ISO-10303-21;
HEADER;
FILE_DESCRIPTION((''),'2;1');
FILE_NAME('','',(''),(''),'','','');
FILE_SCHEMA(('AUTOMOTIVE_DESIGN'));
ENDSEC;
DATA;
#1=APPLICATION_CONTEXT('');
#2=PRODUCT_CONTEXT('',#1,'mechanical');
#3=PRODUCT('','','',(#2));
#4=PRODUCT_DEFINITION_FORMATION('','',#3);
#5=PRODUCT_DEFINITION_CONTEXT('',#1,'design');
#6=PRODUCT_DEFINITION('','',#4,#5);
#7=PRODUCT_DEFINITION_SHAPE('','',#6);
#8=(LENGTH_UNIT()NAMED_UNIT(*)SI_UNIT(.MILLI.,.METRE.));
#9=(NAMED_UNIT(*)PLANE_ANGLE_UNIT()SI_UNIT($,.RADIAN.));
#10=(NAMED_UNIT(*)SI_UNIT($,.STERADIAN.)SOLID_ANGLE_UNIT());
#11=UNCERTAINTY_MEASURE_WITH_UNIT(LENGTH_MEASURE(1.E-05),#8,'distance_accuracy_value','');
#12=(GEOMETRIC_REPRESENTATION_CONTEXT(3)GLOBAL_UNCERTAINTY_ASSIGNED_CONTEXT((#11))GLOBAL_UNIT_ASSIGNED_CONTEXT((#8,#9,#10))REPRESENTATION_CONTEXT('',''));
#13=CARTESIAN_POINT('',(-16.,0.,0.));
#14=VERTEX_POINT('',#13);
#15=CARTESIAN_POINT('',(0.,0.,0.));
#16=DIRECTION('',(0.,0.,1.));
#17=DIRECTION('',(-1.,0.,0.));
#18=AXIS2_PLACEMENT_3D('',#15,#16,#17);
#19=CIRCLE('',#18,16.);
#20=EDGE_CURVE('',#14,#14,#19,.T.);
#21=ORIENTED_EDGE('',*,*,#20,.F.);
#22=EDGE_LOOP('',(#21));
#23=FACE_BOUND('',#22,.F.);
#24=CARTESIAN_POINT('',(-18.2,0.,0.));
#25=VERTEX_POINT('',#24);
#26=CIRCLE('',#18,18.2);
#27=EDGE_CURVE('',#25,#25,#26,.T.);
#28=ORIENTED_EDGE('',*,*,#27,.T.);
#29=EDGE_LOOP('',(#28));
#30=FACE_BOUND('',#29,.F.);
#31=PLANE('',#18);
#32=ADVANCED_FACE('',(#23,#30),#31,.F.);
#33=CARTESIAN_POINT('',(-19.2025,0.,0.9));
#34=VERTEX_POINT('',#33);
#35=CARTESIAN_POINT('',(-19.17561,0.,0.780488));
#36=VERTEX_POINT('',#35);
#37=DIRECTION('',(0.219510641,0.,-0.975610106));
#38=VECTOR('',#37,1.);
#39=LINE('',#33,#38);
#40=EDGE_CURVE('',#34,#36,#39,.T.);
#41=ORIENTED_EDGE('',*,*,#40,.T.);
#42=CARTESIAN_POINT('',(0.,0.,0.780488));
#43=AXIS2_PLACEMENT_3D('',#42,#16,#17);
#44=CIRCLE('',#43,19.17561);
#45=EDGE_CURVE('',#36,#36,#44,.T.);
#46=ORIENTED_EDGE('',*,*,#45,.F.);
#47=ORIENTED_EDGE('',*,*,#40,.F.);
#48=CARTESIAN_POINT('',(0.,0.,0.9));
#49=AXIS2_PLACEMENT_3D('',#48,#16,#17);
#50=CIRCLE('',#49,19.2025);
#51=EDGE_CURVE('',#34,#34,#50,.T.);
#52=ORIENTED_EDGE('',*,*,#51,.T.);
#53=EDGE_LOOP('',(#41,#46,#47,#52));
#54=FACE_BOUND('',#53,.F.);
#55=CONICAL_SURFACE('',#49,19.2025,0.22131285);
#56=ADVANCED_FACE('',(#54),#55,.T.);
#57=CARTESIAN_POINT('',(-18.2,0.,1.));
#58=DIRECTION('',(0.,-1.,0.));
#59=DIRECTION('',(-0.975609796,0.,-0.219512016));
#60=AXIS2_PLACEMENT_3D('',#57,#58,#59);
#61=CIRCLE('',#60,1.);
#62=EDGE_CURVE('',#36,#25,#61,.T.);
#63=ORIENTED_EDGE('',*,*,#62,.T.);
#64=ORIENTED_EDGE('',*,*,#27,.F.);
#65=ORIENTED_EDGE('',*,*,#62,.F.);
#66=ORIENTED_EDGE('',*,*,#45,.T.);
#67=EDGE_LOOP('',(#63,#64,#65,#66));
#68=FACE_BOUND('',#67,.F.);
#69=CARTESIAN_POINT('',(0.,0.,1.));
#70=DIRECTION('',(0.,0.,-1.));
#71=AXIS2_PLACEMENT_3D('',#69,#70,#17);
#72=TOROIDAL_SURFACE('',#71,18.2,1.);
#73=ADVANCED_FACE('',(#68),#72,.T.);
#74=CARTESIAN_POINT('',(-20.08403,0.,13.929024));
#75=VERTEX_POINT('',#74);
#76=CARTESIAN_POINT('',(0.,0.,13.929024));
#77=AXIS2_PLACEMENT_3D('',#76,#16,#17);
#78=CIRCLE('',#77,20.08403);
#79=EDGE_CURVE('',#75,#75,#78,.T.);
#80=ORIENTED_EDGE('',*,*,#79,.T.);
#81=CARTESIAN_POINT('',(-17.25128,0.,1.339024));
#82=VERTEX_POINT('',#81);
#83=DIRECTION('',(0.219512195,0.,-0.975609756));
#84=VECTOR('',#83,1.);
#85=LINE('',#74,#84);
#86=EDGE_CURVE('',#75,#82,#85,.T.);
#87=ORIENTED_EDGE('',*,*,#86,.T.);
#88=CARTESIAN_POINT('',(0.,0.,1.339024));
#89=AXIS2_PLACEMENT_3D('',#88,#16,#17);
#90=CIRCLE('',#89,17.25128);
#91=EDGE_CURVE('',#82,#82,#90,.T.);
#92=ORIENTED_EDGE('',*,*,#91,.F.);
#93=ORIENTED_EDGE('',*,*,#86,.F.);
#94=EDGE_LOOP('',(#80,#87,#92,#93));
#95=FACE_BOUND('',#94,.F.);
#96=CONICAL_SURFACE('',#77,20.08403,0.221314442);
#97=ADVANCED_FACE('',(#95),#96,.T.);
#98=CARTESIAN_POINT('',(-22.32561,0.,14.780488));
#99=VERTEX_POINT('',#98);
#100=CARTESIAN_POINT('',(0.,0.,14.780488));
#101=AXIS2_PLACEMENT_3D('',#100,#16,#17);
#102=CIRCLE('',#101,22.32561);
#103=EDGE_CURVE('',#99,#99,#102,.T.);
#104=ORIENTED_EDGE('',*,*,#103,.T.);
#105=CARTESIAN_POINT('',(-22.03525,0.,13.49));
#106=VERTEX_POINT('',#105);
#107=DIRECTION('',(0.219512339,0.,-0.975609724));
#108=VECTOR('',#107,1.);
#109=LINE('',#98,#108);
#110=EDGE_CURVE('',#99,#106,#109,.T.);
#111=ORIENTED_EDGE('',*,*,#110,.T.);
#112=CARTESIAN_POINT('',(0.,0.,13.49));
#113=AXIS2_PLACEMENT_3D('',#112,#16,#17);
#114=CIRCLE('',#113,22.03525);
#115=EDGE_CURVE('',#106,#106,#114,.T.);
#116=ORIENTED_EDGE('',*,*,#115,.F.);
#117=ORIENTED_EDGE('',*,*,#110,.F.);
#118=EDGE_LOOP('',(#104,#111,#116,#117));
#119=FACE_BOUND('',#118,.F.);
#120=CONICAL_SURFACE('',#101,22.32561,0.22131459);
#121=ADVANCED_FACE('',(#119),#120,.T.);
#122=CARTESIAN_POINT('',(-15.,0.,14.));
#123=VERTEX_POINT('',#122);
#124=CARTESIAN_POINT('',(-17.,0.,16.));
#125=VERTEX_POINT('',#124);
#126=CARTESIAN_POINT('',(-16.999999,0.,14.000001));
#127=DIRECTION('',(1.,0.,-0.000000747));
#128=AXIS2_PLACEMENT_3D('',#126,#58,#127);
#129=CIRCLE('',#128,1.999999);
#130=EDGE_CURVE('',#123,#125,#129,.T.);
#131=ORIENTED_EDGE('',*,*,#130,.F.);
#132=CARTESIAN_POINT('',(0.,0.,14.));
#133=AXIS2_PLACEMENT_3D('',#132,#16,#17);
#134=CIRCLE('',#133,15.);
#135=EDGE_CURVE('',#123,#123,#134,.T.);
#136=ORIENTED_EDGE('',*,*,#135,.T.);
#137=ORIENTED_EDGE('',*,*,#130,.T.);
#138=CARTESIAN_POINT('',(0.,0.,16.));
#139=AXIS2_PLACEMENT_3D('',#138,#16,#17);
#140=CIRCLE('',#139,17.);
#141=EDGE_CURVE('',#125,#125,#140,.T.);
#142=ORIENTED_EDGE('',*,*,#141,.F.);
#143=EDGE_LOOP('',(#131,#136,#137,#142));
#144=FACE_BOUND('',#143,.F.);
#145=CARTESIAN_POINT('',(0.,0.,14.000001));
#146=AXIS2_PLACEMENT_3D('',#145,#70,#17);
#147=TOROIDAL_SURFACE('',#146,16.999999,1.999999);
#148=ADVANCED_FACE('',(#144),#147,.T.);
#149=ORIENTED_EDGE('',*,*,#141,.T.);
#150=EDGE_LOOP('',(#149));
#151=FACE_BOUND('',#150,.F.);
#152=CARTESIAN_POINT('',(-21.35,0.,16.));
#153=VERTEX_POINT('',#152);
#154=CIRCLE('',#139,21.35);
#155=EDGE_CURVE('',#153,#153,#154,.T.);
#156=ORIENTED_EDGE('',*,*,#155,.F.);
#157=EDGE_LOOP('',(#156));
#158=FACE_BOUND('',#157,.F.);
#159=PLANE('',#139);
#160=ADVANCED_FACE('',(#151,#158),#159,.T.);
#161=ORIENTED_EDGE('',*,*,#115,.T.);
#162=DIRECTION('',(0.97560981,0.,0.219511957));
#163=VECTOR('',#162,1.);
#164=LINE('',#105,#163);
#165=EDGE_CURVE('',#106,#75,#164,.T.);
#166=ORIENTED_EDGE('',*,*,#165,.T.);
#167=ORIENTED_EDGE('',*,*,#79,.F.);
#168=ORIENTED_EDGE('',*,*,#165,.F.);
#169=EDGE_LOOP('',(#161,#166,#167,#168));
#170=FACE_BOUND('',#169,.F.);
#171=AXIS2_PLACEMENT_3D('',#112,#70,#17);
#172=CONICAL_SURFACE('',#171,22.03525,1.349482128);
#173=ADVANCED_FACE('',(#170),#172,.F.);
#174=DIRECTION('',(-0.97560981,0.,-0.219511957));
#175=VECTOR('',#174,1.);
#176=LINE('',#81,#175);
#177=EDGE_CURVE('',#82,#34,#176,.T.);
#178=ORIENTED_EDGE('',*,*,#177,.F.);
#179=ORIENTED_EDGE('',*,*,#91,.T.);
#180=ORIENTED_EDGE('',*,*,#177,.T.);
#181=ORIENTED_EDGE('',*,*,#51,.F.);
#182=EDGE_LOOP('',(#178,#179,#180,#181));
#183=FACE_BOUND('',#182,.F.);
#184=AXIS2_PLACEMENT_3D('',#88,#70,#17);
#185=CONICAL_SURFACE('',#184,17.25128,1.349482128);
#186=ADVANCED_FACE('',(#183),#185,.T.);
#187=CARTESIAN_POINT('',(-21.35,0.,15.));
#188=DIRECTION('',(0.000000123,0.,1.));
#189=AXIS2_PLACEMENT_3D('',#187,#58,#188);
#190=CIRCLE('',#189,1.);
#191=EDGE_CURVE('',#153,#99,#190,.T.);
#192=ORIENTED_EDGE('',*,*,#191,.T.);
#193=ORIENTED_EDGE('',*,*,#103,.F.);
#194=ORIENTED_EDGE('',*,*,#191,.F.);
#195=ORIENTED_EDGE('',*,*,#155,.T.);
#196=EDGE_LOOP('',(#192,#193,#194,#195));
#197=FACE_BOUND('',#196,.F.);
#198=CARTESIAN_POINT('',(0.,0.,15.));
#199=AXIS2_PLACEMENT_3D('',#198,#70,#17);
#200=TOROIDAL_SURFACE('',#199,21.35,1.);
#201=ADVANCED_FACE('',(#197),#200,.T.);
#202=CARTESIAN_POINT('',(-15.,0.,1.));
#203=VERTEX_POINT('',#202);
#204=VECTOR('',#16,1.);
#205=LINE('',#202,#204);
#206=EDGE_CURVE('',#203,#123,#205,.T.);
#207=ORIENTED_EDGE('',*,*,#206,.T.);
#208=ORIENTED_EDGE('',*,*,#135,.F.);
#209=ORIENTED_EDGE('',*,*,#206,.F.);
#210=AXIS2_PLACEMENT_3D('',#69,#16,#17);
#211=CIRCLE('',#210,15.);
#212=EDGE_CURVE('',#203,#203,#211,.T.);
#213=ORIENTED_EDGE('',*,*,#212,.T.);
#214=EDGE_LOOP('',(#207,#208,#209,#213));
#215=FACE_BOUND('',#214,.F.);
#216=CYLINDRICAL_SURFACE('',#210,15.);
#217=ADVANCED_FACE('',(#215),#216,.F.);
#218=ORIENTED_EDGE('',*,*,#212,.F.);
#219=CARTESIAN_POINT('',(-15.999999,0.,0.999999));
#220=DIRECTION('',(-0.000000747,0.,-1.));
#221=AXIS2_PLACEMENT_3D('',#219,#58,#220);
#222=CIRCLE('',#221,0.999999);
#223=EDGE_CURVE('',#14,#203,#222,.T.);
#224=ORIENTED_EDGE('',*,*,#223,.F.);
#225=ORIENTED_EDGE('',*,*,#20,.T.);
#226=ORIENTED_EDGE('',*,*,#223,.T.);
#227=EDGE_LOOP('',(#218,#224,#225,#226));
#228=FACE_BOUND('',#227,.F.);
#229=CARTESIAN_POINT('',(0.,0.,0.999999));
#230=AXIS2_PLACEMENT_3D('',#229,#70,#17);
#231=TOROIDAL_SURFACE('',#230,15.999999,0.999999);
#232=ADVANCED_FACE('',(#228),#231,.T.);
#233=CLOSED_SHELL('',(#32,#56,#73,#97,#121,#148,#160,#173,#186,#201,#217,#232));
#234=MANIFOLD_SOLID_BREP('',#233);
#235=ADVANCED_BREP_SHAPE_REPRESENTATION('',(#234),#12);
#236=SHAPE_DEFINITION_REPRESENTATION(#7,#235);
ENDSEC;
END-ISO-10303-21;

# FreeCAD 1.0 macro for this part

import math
import FreeCAD as App
import Part
import Sketcher

V = App.Vector

doc = App.newDocument("Part")
params = doc.addObject("Spreadsheet::Sheet", "Params")
for row, (alias, value) in enumerate([
    ("sketch1_radius", "0.999999 mm"),
    ("sketch1_radius2", "1.999999 mm"),
    ("sketch1_height", "13 mm"),
    ("sketch1_length", "2 mm"),
    ("sketch1_width", "2.2 mm"),
    ("revolution_angle", "360 deg"),
], start=1):
    params.set(f"A{row}", alias)
    params.set(f"B{row}", "=" + value)
    params.setAlias(f"B{row}", alias)

body = doc.addObject("PartDesign::Body", "Body")

# Sketch on XZ plane
sketch1 = body.newObject("Sketcher::SketchObject", "Sketch")
sketch1.AttachmentSupport = (doc.getObject("XZ_Plane"), [""])
sketch1.MapMode = "FlatFace"
sketch1.addGeometry([
    Part.ArcOfCircle(Part.Circle(V(-15.999999, 0.999999, 0), V(0, 0, 1), 0.999999), math.radians(-90.000043), math.radians(0.000043)),  # 0
    Part.LineSegment(V(-15, 1, 0), V(-15, 14, 0)),  # 1
    Part.ArcOfCircle(Part.Circle(V(-16.999999, 14.000001, 0), V(0, 0, 1), 1.999999), math.radians(-0.000043), math.radians(90.000043)),  # 2
    Part.LineSegment(V(-17, 16, 0), V(-21.35, 16, 0)),  # 3
    Part.ArcOfCircle(Part.Circle(V(-21.35, 15, 0), V(0, 0, 1), 1), math.radians(89.999993), math.radians(192.680368)),  # 4
    Part.LineSegment(V(-22.32561, 14.780488, 0), V(-22.03525, 13.49, 0)),  # 5
    Part.LineSegment(V(-22.03525, 13.49, 0), V(-20.08403, 13.929024, 0)),  # 6
    Part.LineSegment(V(-20.08403, 13.929024, 0), V(-17.25128, 1.339024, 0)),  # 7
    Part.LineSegment(V(-17.25128, 1.339024, 0), V(-19.2025, 0.9, 0)),  # 8
    Part.LineSegment(V(-19.2025, 0.9, 0), V(-19.17561, 0.780488, 0)),  # 9
    Part.ArcOfCircle(Part.Circle(V(-18.2, 1, 0), V(0, 0, 1), 1), math.radians(-167.319627), math.radians(-89.99999)),  # 10
    Part.LineSegment(V(-18.2, 0, 0), V(-16, 0, 0)),  # 11
], False)
sketch1.addConstraint([
    Sketcher.Constraint("Tangent", 0, 2, 1, 1),
    Sketcher.Constraint("Tangent", 1, 2, 2, 1),
    Sketcher.Constraint("Tangent", 2, 2, 3, 1),
    Sketcher.Constraint("Tangent", 3, 2, 4, 1),
    Sketcher.Constraint("Tangent", 4, 2, 5, 1),
    Sketcher.Constraint("Coincident", 5, 2, 6, 1),
    Sketcher.Constraint("Coincident", 6, 2, 7, 1),
    Sketcher.Constraint("Coincident", 7, 2, 8, 1),
    Sketcher.Constraint("Coincident", 8, 2, 9, 1),
    Sketcher.Constraint("Tangent", 9, 2, 10, 1),
    Sketcher.Constraint("Tangent", 10, 2, 11, 1),
    Sketcher.Constraint("Tangent", 11, 2, 0, 1),
    Sketcher.Constraint("Vertical", 1),
    Sketcher.Constraint("Horizontal", 3),
    Sketcher.Constraint("Horizontal", 11),
    Sketcher.Constraint("Equal", 0, 4),
    Sketcher.Constraint("Equal", 4, 10),
    Sketcher.Constraint("PointOnObject", 10, 2, -1),
    Sketcher.Constraint("Perpendicular", 5, 6),
    Sketcher.Constraint("Perpendicular", 6, 7),
    Sketcher.Constraint("Perpendicular", 7, 8),
    Sketcher.Constraint("Perpendicular", 8, 9),
    Sketcher.Constraint("Equal", 6, 8),
    Sketcher.Constraint("Radius", 0, 0.999999),
    Sketcher.Constraint("Radius", 2, 1.999999),
    Sketcher.Constraint("DistanceY", 1, 1, 1, 2, 13.0),
    Sketcher.Constraint("Distance", 6, 2.0),
    Sketcher.Constraint("DistanceX", 11, 1, 11, 2, 2.2),
    Sketcher.Constraint("DistanceX", 0, 3, -1, 1, 15.999999),
    Sketcher.Constraint("DistanceX", 3, 2, 3, 1, 4.35),
    Sketcher.Constraint("DistanceY", -1, 1, 8, 2, 0.9),
    Sketcher.Constraint("DistanceY", -1, 1, 5, 2, 13.49),
])
sketch1.setExpression("Constraints[23]", "Params.sketch1_radius")
sketch1.setExpression("Constraints[24]", "Params.sketch1_radius2")
sketch1.setExpression("Constraints[25]", "Params.sketch1_height")
sketch1.setExpression("Constraints[26]", "Params.sketch1_length")
sketch1.setExpression("Constraints[27]", "Params.sketch1_width")
revolution = body.newObject("PartDesign::Revolution", "Revolution")
revolution.Profile = sketch1
revolution.ReferenceAxis = (sketch1, ["V_Axis"])
revolution.setExpression("Angle", "Params.revolution_angle")

doc.recompute()
